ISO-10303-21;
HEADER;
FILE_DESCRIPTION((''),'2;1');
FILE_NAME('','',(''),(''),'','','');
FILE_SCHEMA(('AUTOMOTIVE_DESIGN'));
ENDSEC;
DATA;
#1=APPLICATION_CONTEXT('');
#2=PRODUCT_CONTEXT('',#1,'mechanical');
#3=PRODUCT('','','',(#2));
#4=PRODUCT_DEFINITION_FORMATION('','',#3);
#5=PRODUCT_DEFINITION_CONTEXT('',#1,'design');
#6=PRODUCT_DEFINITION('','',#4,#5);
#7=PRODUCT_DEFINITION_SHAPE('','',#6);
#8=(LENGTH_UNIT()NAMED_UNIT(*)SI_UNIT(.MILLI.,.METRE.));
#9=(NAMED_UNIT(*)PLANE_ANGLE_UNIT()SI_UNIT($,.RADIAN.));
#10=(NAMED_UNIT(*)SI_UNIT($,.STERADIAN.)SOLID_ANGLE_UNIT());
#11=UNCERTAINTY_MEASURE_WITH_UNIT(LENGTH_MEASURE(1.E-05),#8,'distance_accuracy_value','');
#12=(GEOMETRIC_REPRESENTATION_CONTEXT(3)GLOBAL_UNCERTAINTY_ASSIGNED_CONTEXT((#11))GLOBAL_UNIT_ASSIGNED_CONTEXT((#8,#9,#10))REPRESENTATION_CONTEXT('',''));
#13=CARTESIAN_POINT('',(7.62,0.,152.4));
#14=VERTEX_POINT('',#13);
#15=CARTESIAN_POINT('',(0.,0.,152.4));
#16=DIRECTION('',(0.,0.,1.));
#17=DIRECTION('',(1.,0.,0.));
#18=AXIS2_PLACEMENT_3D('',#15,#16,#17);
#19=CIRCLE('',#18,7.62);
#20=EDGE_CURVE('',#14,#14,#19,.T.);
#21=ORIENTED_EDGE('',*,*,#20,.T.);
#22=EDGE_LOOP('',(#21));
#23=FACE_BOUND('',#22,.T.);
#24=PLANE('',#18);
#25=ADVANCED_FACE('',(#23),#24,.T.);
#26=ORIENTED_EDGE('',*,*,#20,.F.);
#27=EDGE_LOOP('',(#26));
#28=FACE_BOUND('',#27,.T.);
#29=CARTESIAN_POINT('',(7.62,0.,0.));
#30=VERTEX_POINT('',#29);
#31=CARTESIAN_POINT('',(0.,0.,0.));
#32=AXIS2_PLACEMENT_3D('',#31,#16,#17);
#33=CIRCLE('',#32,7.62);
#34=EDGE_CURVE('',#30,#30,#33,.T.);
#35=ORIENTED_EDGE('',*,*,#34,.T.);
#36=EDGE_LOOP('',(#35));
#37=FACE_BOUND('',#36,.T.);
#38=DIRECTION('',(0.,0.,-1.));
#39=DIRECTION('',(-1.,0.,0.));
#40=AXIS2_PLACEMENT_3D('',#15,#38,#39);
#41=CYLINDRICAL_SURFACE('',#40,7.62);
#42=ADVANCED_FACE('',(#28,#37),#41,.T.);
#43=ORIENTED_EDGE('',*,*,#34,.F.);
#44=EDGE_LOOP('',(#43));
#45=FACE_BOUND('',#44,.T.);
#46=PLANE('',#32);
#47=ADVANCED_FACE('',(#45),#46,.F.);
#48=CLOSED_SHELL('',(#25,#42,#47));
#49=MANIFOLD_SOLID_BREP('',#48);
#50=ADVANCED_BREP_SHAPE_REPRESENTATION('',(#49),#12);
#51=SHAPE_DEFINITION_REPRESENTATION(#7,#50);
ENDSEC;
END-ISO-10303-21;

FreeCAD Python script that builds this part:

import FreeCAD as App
import Part
import Sketcher
from FreeCAD import Vector
Q = App.Units.Quantity

doc = App.newDocument("Part")
body = doc.addObject("PartDesign::Body", "Body")

# Sketch on XY plane
sketch1 = body.newObject("Sketcher::SketchObject", "Sketch")
sketch1.AttachmentSupport = (doc.getObject("XY_Plane"), [""])
sketch1.MapMode = "FlatFace"
sketch1.addGeometry(Part.Circle(Vector(0, 0, 0), Vector(0, 0, 1), 8), False)
sketch1.addConstraint(Sketcher.Constraint("Coincident", 0, 3, -1, 1))
sketch1.addConstraint(Sketcher.Constraint("Diameter", 0, Q("0.6 in")))
pad1 = body.newObject("PartDesign::Pad", "Pad")
pad1.Profile = sketch1
pad1.Length = Q("6 in")

doc.recompute()
